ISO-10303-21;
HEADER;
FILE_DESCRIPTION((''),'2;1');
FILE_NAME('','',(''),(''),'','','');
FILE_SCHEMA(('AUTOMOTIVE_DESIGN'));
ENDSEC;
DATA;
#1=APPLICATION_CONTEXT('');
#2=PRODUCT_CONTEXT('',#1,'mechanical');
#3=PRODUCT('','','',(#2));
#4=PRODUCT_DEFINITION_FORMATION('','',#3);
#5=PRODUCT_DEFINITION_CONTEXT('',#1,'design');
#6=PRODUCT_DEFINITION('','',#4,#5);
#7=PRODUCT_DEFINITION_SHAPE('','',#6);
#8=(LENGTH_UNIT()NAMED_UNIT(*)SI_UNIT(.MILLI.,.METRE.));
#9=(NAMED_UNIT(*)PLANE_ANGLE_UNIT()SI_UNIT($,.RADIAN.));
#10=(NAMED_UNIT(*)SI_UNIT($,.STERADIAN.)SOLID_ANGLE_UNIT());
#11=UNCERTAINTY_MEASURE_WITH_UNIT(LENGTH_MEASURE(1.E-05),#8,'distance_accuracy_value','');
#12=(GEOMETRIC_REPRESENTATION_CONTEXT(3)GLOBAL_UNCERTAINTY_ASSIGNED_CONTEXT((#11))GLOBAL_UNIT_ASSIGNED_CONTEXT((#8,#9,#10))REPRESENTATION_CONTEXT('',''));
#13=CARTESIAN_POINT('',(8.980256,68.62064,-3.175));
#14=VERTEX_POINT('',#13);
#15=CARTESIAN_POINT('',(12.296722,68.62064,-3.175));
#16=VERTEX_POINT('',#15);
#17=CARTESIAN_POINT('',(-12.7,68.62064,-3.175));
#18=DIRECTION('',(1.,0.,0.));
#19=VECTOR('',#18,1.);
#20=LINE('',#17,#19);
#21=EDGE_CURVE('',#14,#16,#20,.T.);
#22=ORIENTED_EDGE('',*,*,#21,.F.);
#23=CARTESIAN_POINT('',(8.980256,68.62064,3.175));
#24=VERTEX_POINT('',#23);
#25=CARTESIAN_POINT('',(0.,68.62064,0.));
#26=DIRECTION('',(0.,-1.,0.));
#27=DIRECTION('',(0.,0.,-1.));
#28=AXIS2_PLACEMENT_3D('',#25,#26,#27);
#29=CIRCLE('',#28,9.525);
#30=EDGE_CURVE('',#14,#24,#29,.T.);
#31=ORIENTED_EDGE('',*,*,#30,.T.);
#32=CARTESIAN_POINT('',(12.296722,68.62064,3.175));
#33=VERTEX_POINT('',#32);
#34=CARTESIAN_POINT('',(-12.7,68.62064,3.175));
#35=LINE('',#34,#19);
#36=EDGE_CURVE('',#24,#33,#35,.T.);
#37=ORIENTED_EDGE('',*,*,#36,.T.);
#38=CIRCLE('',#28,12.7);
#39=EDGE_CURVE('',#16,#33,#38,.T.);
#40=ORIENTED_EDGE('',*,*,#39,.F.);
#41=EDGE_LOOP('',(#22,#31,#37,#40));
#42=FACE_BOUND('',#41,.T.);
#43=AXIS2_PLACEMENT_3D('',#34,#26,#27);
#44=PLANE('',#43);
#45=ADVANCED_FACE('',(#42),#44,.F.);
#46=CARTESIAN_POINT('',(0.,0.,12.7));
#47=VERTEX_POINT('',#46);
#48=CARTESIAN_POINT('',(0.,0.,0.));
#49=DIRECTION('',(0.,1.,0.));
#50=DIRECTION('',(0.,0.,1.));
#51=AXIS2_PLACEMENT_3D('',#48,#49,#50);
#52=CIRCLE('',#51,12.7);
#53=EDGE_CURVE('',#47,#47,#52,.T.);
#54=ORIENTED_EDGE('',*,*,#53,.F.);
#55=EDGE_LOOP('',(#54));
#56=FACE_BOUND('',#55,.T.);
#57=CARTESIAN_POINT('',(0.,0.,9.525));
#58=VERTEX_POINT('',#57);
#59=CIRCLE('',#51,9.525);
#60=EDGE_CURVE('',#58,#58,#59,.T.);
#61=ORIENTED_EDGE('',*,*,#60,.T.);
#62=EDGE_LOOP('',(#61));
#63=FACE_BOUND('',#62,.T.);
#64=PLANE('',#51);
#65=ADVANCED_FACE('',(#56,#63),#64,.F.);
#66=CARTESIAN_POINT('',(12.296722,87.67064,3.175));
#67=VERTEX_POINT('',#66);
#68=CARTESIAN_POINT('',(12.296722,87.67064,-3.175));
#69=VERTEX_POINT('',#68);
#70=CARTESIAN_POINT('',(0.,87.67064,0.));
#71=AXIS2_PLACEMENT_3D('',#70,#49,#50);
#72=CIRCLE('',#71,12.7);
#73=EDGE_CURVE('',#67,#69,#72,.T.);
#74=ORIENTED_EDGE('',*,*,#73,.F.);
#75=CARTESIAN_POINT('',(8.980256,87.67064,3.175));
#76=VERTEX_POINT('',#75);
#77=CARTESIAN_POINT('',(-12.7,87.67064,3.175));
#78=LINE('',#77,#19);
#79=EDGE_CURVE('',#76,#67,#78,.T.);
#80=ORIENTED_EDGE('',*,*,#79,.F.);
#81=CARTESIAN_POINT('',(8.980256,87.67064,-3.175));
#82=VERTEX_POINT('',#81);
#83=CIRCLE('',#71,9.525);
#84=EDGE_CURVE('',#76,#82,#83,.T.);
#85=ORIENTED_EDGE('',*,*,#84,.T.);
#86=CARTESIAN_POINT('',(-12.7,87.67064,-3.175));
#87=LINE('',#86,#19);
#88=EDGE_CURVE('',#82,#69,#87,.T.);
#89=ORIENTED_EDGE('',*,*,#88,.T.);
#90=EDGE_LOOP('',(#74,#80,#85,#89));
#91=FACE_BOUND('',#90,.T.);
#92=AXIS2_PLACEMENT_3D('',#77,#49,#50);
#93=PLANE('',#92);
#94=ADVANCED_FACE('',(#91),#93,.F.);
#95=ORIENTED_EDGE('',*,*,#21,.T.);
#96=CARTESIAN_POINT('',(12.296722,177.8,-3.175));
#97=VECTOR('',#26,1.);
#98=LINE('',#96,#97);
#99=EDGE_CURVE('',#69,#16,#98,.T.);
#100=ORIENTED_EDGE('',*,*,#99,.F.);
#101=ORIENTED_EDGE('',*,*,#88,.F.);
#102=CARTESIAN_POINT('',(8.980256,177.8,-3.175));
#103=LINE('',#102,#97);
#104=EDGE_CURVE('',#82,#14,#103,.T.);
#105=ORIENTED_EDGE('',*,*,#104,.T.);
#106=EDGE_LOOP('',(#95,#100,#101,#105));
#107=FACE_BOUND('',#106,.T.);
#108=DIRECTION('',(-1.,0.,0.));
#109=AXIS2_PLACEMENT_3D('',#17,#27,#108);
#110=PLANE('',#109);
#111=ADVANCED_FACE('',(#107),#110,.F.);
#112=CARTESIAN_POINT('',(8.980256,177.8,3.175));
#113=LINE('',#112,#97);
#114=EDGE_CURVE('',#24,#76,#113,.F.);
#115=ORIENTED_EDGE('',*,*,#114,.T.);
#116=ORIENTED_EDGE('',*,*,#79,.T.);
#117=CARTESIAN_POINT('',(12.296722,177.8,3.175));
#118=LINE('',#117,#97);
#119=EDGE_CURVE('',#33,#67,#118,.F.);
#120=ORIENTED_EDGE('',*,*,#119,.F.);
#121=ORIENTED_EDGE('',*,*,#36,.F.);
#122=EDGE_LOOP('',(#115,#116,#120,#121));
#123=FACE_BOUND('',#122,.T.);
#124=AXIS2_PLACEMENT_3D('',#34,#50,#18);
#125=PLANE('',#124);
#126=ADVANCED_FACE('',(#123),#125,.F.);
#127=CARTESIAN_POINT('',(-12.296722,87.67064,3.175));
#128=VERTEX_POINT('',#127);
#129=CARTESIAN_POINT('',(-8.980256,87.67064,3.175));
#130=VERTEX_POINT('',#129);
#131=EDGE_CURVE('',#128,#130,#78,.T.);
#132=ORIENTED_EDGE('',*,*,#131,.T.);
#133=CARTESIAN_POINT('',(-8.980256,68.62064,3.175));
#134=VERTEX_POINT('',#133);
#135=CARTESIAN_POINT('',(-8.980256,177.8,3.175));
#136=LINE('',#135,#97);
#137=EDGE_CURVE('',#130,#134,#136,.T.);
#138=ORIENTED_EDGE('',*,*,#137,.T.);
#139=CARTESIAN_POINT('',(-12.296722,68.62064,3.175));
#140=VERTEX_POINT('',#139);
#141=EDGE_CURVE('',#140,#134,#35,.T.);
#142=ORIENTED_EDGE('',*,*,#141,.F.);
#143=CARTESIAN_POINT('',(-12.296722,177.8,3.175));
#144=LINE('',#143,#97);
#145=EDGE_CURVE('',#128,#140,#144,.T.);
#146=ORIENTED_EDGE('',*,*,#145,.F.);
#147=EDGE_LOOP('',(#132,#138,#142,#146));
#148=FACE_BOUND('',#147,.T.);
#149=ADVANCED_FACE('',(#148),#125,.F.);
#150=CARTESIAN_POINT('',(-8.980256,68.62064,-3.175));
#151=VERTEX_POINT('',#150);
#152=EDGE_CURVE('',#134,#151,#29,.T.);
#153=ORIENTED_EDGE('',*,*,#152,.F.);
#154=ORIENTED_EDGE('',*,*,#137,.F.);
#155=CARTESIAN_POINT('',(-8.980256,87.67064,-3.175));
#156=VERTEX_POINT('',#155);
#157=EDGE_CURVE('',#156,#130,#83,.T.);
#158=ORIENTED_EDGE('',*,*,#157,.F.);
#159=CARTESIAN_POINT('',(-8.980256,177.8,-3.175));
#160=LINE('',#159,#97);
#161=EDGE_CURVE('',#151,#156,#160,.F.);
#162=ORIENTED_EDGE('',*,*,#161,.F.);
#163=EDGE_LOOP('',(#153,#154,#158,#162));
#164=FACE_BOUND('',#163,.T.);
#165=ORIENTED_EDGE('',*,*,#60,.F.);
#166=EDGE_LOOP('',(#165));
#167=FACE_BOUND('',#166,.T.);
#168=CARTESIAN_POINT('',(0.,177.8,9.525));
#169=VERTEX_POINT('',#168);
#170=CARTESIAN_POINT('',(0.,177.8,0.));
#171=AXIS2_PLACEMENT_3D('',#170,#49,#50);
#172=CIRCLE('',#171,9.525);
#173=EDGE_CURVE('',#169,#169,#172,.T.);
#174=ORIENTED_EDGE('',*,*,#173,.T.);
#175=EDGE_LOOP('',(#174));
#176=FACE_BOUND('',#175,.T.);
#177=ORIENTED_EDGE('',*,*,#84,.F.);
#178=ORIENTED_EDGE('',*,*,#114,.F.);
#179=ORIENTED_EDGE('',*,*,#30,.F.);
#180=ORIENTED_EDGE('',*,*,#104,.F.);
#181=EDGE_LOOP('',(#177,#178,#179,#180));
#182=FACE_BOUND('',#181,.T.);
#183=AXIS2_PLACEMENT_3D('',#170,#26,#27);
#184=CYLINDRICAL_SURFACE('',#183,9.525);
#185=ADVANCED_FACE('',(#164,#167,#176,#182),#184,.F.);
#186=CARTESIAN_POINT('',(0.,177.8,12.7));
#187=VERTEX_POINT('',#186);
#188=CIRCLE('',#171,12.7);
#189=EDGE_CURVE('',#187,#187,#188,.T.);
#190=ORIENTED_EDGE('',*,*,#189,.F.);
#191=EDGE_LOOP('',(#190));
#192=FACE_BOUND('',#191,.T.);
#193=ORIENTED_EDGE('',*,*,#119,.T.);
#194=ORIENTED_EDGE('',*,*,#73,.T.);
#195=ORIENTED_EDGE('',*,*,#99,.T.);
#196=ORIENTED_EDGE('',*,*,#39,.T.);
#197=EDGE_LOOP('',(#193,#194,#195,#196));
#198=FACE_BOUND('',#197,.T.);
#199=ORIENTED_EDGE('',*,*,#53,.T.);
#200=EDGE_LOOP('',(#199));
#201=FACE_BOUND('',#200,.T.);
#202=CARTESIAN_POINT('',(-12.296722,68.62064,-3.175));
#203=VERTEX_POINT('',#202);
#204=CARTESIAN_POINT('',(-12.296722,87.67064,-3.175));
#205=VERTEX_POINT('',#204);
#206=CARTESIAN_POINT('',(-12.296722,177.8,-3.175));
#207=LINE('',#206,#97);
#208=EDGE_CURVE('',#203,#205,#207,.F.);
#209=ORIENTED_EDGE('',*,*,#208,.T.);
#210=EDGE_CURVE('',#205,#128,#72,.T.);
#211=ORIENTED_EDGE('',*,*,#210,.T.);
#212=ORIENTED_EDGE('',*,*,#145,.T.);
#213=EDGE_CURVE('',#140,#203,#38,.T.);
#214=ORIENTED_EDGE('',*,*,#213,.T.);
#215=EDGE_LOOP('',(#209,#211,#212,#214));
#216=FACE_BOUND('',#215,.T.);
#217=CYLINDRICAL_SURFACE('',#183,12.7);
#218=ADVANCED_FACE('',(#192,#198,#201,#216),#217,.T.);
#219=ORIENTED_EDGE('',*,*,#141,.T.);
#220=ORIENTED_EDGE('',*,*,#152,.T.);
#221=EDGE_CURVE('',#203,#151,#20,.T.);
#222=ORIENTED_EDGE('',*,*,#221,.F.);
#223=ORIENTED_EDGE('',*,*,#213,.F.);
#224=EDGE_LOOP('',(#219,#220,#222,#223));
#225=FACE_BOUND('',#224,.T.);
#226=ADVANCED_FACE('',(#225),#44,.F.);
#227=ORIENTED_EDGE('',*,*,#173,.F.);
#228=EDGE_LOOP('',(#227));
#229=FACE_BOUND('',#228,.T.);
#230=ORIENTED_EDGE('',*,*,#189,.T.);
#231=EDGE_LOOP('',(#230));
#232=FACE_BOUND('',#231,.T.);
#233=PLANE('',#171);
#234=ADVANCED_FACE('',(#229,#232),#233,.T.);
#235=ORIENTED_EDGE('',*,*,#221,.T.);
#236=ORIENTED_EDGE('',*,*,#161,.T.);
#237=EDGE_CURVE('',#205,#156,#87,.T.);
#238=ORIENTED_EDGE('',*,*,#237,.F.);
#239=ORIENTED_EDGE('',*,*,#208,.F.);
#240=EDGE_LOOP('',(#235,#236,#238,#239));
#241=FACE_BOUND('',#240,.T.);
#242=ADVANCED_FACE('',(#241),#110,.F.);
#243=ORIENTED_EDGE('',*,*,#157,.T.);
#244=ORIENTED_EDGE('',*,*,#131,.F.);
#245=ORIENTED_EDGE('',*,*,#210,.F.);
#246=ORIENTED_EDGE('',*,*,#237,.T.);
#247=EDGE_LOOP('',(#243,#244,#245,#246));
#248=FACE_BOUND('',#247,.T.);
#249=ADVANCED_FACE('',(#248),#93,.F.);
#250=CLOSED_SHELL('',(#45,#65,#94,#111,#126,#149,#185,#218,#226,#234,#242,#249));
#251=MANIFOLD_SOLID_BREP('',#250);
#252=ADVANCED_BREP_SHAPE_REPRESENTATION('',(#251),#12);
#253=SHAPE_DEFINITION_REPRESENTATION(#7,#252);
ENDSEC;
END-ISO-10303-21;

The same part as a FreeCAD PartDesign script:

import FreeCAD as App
import Part
import Sketcher

V = App.Vector
Q = App.Units.Quantity

doc = App.newDocument("Part")
body = doc.addObject("PartDesign::Body", "Body")

sketch1 = body.newObject("Sketcher::SketchObject", "Sketch")
sketch1.AttachmentSupport = (doc.getObject("XZ_Plane"), [""])
sketch1.MapMode = "FlatFace"
sketch1.addGeometry([
    Part.Circle(V(0, 0, 0), V(0, 0, 1), 13),
    Part.Circle(V(0, 0, 0), V(0, 0, 1), 10),
], False)
sketch1.addConstraint([
    Sketcher.Constraint("Coincident", 0, 3, -1, 1),
    Sketcher.Constraint("Coincident", 1, 3, -1, 1),
    Sketcher.Constraint("Diameter", 0, Q("1 in")),
    Sketcher.Constraint("Diameter", 1, Q("0.75 in")),
])
pad1 = body.newObject("PartDesign::Pad", "Pad")
pad1.Profile = sketch1
pad1.Length = Q("7 in")
pad1.Reversed = True

sketch2 = body.newObject("Sketcher::SketchObject", "Sketch001")
sketch2.AttachmentSupport = (doc.getObject("YZ_Plane"), [""])
sketch2.MapMode = "FlatFace"
sketch2.addGeometry([
    Part.LineSegment(V(88, 3, 0), V(69, 3, 0)),
    Part.LineSegment(V(69, 3, 0), V(69, -3, 0)),
    Part.LineSegment(V(69, -3, 0), V(88, -3, 0)),
    Part.LineSegment(V(88, -3, 0), V(88, 3, 0)),
], False)
sketch2.addConstraint([
    Sketcher.Constraint("Coincident", 0, 2, 1, 1),
    Sketcher.Constraint("Coincident", 1, 2, 2, 1),
    Sketcher.Constraint("Coincident", 2, 2, 3, 1),
    Sketcher.Constraint("Coincident", 3, 2, 0, 1),
    Sketcher.Constraint("Horizontal", 0),
    Sketcher.Constraint("Vertical", 1),
    Sketcher.Constraint("Horizontal", 2),
    Sketcher.Constraint("Vertical", 3),
    Sketcher.Constraint("DistanceX", 0, 2, 0, 1, Q("0.75 in")),
    Sketcher.Constraint("DistanceY", 1, 2, 1, 1, Q("0.25 in")),
    Sketcher.Constraint("DistanceY", -1, 1, 0, 2, Q("0.125 in")),
    Sketcher.Constraint("DistanceX", -1, 1, 0, 2, Q("2.7016 in")),
])
pocket1 = body.newObject("PartDesign::Pocket", "Pocket")
pocket1.Profile = sketch2
pocket1.Type = "ThroughAll"
pocket1.Midplane = True

doc.recompute()
